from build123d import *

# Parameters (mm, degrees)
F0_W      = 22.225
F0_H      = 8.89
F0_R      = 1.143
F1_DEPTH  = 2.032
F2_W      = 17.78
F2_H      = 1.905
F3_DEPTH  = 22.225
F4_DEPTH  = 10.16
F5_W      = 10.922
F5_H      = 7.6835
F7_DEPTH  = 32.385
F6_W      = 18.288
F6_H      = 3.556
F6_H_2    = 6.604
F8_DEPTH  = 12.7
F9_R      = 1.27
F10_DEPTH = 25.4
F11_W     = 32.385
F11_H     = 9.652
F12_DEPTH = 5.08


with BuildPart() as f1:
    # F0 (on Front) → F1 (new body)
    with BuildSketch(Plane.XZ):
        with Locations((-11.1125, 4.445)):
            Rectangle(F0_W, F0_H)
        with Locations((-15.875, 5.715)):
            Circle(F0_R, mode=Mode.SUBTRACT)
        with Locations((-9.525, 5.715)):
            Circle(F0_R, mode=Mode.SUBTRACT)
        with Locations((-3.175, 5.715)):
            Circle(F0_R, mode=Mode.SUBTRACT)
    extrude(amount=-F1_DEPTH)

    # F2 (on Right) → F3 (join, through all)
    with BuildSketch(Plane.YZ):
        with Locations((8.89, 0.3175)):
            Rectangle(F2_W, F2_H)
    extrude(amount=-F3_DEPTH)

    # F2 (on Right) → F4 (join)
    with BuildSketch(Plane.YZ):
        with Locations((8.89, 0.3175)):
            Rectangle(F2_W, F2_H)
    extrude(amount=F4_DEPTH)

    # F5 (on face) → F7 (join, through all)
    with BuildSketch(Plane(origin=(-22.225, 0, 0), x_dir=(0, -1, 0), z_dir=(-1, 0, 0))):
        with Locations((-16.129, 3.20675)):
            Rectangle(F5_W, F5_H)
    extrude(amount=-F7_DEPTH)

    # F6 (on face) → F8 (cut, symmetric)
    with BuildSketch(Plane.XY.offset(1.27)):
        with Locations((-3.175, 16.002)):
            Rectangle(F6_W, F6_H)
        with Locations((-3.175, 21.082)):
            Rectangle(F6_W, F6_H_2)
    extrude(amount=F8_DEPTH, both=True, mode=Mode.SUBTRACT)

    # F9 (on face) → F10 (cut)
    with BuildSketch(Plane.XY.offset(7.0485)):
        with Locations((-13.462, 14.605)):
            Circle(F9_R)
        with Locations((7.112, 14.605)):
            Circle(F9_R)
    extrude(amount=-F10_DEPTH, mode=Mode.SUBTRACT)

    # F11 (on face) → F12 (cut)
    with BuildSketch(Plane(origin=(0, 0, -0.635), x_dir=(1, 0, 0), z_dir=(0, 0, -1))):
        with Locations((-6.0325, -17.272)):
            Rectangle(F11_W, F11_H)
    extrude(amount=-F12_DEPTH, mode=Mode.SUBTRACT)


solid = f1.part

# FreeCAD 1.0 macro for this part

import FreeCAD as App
import Part
import Sketcher
Q = App.Units.Quantity

doc = App.newDocument("Part")
body = doc.addObject("PartDesign::Body", "Body")

sketch1 = doc.addObject("Sketcher::SketchObject", "Sketch")
body.addObject(sketch1)
sketch1.AttachmentSupport = (doc.XZ_Plane, [""])
sketch1.MapMode = "FlatFace"
sketch1.addGeometry(Part.LineSegment(App.Vector(-22.225, 8.89, 0), App.Vector(-22.225, 0, 0)), False)
sketch1.addGeometry(Part.LineSegment(App.Vector(-22.225, 0, 0), App.Vector(0, 0, 0)), False)
sketch1.addGeometry(Part.LineSegment(App.Vector(0, 0, 0), App.Vector(0, 8.89, 0)), False)
sketch1.addGeometry(Part.LineSegment(App.Vector(0, 8.89, 0), App.Vector(-22.225, 8.89, 0)), False)
sketch1.addGeometry(Part.Circle(App.Vector(-15.875, 5.715, 0), App.Vector(0, 0, 1), 1.143), False)
sketch1.addGeometry(Part.Circle(App.Vector(-9.525, 5.715, 0), App.Vector(0, 0, 1), 1.143), False)
sketch1.addGeometry(Part.Circle(App.Vector(-3.175, 5.715, 0), App.Vector(0, 0, 1), 1.143), False)
sketch1.addConstraint(Sketcher.Constraint("Coincident", 0, 2, 1, 1))
sketch1.addConstraint(Sketcher.Constraint("Coincident", 1, 2, 2, 1))
sketch1.addConstraint(Sketcher.Constraint("Coincident", 2, 2, 3, 1))
sketch1.addConstraint(Sketcher.Constraint("Coincident", 3, 2, 0, 1))
sketch1.addConstraint(Sketcher.Constraint("Vertical", 0))
sketch1.addConstraint(Sketcher.Constraint("Horizontal", 1))
sketch1.addConstraint(Sketcher.Constraint("Vertical", 2))
sketch1.addConstraint(Sketcher.Constraint("Horizontal", 3))
sketch1.addConstraint(Sketcher.Constraint("Coincident", 1, 2, -1, 1))
sketch1.addConstraint(Sketcher.Constraint("Equal", 4, 5))
sketch1.addConstraint(Sketcher.Constraint("Equal", 5, 6))
sketch1.addConstraint(Sketcher.Constraint("Horizontal", 4, 3, 5, 3))
sketch1.addConstraint(Sketcher.Constraint("Horizontal", 5, 3, 6, 3))
sketch1.addConstraint(Sketcher.Constraint("Diameter", 4, Q("0.09 in")))
sketch1.addConstraint(Sketcher.Constraint("DistanceY", 0, 2, 0, 1, Q("0.35 in")))
sketch1.addConstraint(Sketcher.Constraint("DistanceX", 4, 3, 6, 3, Q("0.5 in")))
sketch1.addConstraint(Sketcher.Constraint("DistanceX", 0, 2, 5, 3, Q("0.5 in")))
sketch1.addConstraint(Sketcher.Constraint("DistanceX", 1, 1, 1, 2, Q("0.875 in")))
sketch1.addConstraint(Sketcher.Constraint("DistanceX", 4, 3, 5, 3, Q("0.25 in")))
sketch1.addConstraint(Sketcher.Constraint("DistanceY", -1, 1, 4, 3, Q("0.225 in")))
pad1 = doc.addObject("PartDesign::Pad", "Pad")
body.addObject(pad1)
pad1.Profile = sketch1
pad1.Length = Q("0.08 in")
pad1.Reversed = True

sketch2 = doc.addObject("Sketcher::SketchObject", "Sketch001")
body.addObject(sketch2)
sketch2.AttachmentSupport = (doc.YZ_Plane, [""])
sketch2.MapMode = "FlatFace"
sketch2.addGeometry(Part.LineSegment(App.Vector(0, 1.27, 0), App.Vector(0, -0.635, 0)), False)
sketch2.addGeometry(Part.LineSegment(App.Vector(0, -0.635, 0), App.Vector(17.78, -0.635, 0)), False)
sketch2.addGeometry(Part.LineSegment(App.Vector(17.78, -0.635, 0), App.Vector(17.78, 1.27, 0)), False)
sketch2.addGeometry(Part.LineSegment(App.Vector(17.78, 1.27, 0), App.Vector(0, 1.27, 0)), False)
sketch2.addConstraint(Sketcher.Constraint("Coincident", 0, 2, 1, 1))
sketch2.addConstraint(Sketcher.Constraint("Coincident", 1, 2, 2, 1))
sketch2.addConstraint(Sketcher.Constraint("Coincident", 2, 2, 3, 1))
sketch2.addConstraint(Sketcher.Constraint("Coincident", 3, 2, 0, 1))
sketch2.addConstraint(Sketcher.Constraint("Vertical", 0))
sketch2.addConstraint(Sketcher.Constraint("Horizontal", 1))
sketch2.addConstraint(Sketcher.Constraint("Vertical", 2))
sketch2.addConstraint(Sketcher.Constraint("Horizontal", 3))
sketch2.addConstraint(Sketcher.Constraint("PointOnObject", 0, 2, -2))
sketch2.addConstraint(Sketcher.Constraint("DistanceX", 1, 1, 1, 2, Q("0.7 in")))
sketch2.addConstraint(Sketcher.Constraint("DistanceY", 0, 2, 0, 1, Q("0.075 in")))
sketch2.addConstraint(Sketcher.Constraint("DistanceY", -1, 1, 2, 2, Q("0.05 in")))
pad2 = doc.addObject("PartDesign::Pad", "Pad001")
body.addObject(pad2)
pad2.Profile = sketch2
pad2.Length = Q("0.875 in")
pad2.Reversed = True

sketch3 = doc.addObject("Sketcher::SketchObject", "Sketch002")
body.addObject(sketch3)
sketch3.AttachmentSupport = (doc.YZ_Plane, [""])
sketch3.MapMode = "FlatFace"
sketch3.addGeometry(Part.LineSegment(App.Vector(0, 1.27, 0), App.Vector(0, -0.635, 0)), False)
sketch3.addGeometry(Part.LineSegment(App.Vector(0, -0.635, 0), App.Vector(17.78, -0.635, 0)), False)
sketch3.addGeometry(Part.LineSegment(App.Vector(17.78, -0.635, 0), App.Vector(17.78, 1.27, 0)), False)
sketch3.addGeometry(Part.LineSegment(App.Vector(17.78, 1.27, 0), App.Vector(0, 1.27, 0)), False)
sketch3.addConstraint(Sketcher.Constraint("Coincident", 0, 2, 1, 1))
sketch3.addConstraint(Sketcher.Constraint("Coincident", 1, 2, 2, 1))
sketch3.addConstraint(Sketcher.Constraint("Coincident", 2, 2, 3, 1))
sketch3.addConstraint(Sketcher.Constraint("Coincident", 3, 2, 0, 1))
sketch3.addConstraint(Sketcher.Constraint("Vertical", 0))
sketch3.addConstraint(Sketcher.Constraint("Horizontal", 1))
sketch3.addConstraint(Sketcher.Constraint("Vertical", 2))
sketch3.addConstraint(Sketcher.Constraint("Horizontal", 3))
sketch3.addConstraint(Sketcher.Constraint("PointOnObject", 0, 2, -2))
sketch3.addConstraint(Sketcher.Constraint("DistanceX", 1, 1, 1, 2, Q("0.7 in")))
sketch3.addConstraint(Sketcher.Constraint("DistanceY", 0, 2, 0, 1, Q("0.075 in")))
sketch3.addConstraint(Sketcher.Constraint("DistanceY", -1, 1, 2, 2, Q("0.05 in")))
pad3 = doc.addObject("PartDesign::Pad", "Pad002")
body.addObject(pad3)
pad3.Profile = sketch3
pad3.Length = Q("0.4 in")

sketch4 = doc.addObject("Sketcher::SketchObject", "Sketch003")
body.addObject(sketch4)
sketch4.AttachmentSupport = (doc.YZ_Plane, [""])
sketch4.MapMode = "FlatFace"
sketch4.AttachmentOffset = App.Placement(App.Vector(0, 0, -0.875 * 25.4), App.Rotation())
sketch4.addGeometry(Part.LineSegment(App.Vector(21.59, 7.0485, 0), App.Vector(21.59, -0.635, 0)), False)
sketch4.addGeometry(Part.LineSegment(App.Vector(21.59, -0.635, 0), App.Vector(10.668, -0.635, 0)), False)
sketch4.addGeometry(Part.LineSegment(App.Vector(10.668, -0.635, 0), App.Vector(10.668, 7.0485, 0)), False)
sketch4.addGeometry(Part.LineSegment(App.Vector(10.668, 7.0485, 0), App.Vector(21.59, 7.0485, 0)), False)
sketch4.addConstraint(Sketcher.Constraint("Coincident", 0, 2, 1, 1))
sketch4.addConstraint(Sketcher.Constraint("Coincident", 1, 2, 2, 1))
sketch4.addConstraint(Sketcher.Constraint("Coincident", 2, 2, 3, 1))
sketch4.addConstraint(Sketcher.Constraint("Coincident", 3, 2, 0, 1))
sketch4.addConstraint(Sketcher.Constraint("Vertical", 0))
sketch4.addConstraint(Sketcher.Constraint("Horizontal", 1))
sketch4.addConstraint(Sketcher.Constraint("Vertical", 2))
sketch4.addConstraint(Sketcher.Constraint("Horizontal", 3))
sketch4.addConstraint(Sketcher.Constraint("DistanceX", 1, 2, 1, 1, Q("0.43 in")))
sketch4.addConstraint(Sketcher.Constraint("DistanceX", -1, 1, 0, 2, Q("0.85 in")))
sketch4.addConstraint(Sketcher.Constraint("DistanceY", 0, 2, 0, 1, Q("0.3025 in")))
sketch4.addConstraint(Sketcher.Constraint("DistanceY", 0, 2, -1, 1, Q("0.025 in")))
pad4 = doc.addObject("PartDesign::Pad", "Pad003")
body.addObject(pad4)
pad4.Profile = sketch4
pad4.Length = Q("1.275 in")

sketch5 = doc.addObject("Sketcher::SketchObject", "Sketch004")
body.addObject(sketch5)
sketch5.AttachmentSupport = (doc.XY_Plane, [""])
sketch5.MapMode = "FlatFace"
sketch5.AttachmentOffset = App.Placement(App.Vector(0, 0, 0.05 * 25.4), App.Rotation())
sketch5.addGeometry(Part.LineSegment(App.Vector(-12.319, 14.224, 0), App.Vector(5.969, 14.224, 0)), False)
sketch5.addGeometry(Part.LineSegment(App.Vector(5.969, 14.224, 0), App.Vector(5.969, 24.384, 0)), False)
sketch5.addGeometry(Part.LineSegment(App.Vector(5.969, 24.384, 0), App.Vector(-12.319, 24.384, 0)), False)
sketch5.addGeometry(Part.LineSegment(App.Vector(-12.319, 24.384, 0), App.Vector(-12.319, 14.224, 0)), False)
sketch5.addConstraint(Sketcher.Constraint("Coincident", 0, 2, 1, 1))
sketch5.addConstraint(Sketcher.Constraint("Coincident", 1, 2, 2, 1))
sketch5.addConstraint(Sketcher.Constraint("Coincident", 2, 2, 3, 1))
sketch5.addConstraint(Sketcher.Constraint("Coincident", 3, 2, 0, 1))
sketch5.addConstraint(Sketcher.Constraint("Horizontal", 0))
sketch5.addConstraint(Sketcher.Constraint("Vertical", 1))
sketch5.addConstraint(Sketcher.Constraint("Horizontal", 2))
sketch5.addConstraint(Sketcher.Constraint("Vertical", 3))
sketch5.addConstraint(Sketcher.Constraint("DistanceY", 1, 1, 1, 2, Q("0.4 in")))
sketch5.addConstraint(Sketcher.Constraint("DistanceX", 0, 1, 0, 2, Q("0.72 in")))
sketch5.addConstraint(Sketcher.Constraint("DistanceY", -1, 1, 0, 2, Q("0.56 in")))
sketch5.addConstraint(Sketcher.Constraint("DistanceX", -1, 1, 0, 2, Q("0.235 in")))
pocket1 = doc.addObject("PartDesign::Pocket", "Pocket")
body.addObject(pocket1)
pocket1.Profile = sketch5
pocket1.Length = Q("1 in")
pocket1.Midplane = True

sketch6 = doc.addObject("Sketcher::SketchObject", "Sketch005")
body.addObject(sketch6)
sketch6.AttachmentSupport = (doc.XY_Plane, [""])
sketch6.MapMode = "FlatFace"
sketch6.AttachmentOffset = App.Placement(App.Vector(0, 0, 0.2775 * 25.4), App.Rotation())
sketch6.addGeometry(Part.Circle(App.Vector(-13.462, 14.605, 0), App.Vector(0, 0, 1), 1.27), False)
sketch6.addGeometry(Part.Circle(App.Vector(7.112, 14.605, 0), App.Vector(0, 0, 1), 1.27), False)
sketch6.addConstraint(Sketcher.Constraint("Equal", 0, 1))
sketch6.addConstraint(Sketcher.Constraint("Horizontal", 0, 3, 1, 3))
sketch6.addConstraint(Sketcher.Constraint("Diameter", 0, Q("0.1 in")))
sketch6.addConstraint(Sketcher.Constraint("DistanceX", 0, 3, -1, 1, Q("0.53 in")))
sketch6.addConstraint(Sketcher.Constraint("DistanceX", -1, 1, 1, 3, Q("0.28 in")))
sketch6.addConstraint(Sketcher.Constraint("DistanceY", -1, 1, 0, 3, Q("0.575 in")))
pocket2 = doc.addObject("PartDesign::Pocket", "Pocket001")
body.addObject(pocket2)
pocket2.Profile = sketch6
pocket2.Length = Q("1 in")

sketch7 = doc.addObject("Sketcher::SketchObject", "Sketch006")
body.addObject(sketch7)
sketch7.AttachmentSupport = (doc.XY_Plane, [""])
sketch7.MapMode = "FlatFace"
sketch7.AttachmentOffset = App.Placement(App.Vector(0, 0, -0.025 * 25.4), App.Rotation())
sketch7.addGeometry(Part.LineSegment(App.Vector(-22.225, 12.446, 0), App.Vector(-22.225, 22.098, 0)), False)
sketch7.addGeometry(Part.LineSegment(App.Vector(-22.225, 22.098, 0), App.Vector(10.16, 22.098, 0)), False)
sketch7.addGeometry(Part.LineSegment(App.Vector(10.16, 22.098, 0), App.Vector(10.16, 12.446, 0)), False)
sketch7.addGeometry(Part.LineSegment(App.Vector(10.16, 12.446, 0), App.Vector(-22.225, 12.446, 0)), False)
sketch7.addConstraint(Sketcher.Constraint("Coincident", 0, 2, 1, 1))
sketch7.addConstraint(Sketcher.Constraint("Coincident", 1, 2, 2, 1))
sketch7.addConstraint(Sketcher.Constraint("Coincident", 2, 2, 3, 1))
sketch7.addConstraint(Sketcher.Constraint("Coincident", 3, 2, 0, 1))
sketch7.addConstraint(Sketcher.Constraint("Vertical", 0))
sketch7.addConstraint(Sketcher.Constraint("Horizontal", 1))
sketch7.addConstraint(Sketcher.Constraint("Vertical", 2))
sketch7.addConstraint(Sketcher.Constraint("Horizontal", 3))
sketch7.addConstraint(Sketcher.Constraint("DistanceY", 0, 1, 0, 2, Q("0.38 in")))
sketch7.addConstraint(Sketcher.Constraint("DistanceX", -1, 1, 1, 2, Q("0.4 in")))
sketch7.addConstraint(Sketcher.Constraint("DistanceX", 1, 1, 1, 2, Q("1.275 in")))
sketch7.addConstraint(Sketcher.Constraint("DistanceY", -1, 1, 0, 2, Q("0.87 in")))
pocket3 = doc.addObject("PartDesign::Pocket", "Pocket002")
body.addObject(pocket3)
pocket3.Profile = sketch7
pocket3.Length = Q("0.2 in")
pocket3.Reversed = True

doc.recompute()
